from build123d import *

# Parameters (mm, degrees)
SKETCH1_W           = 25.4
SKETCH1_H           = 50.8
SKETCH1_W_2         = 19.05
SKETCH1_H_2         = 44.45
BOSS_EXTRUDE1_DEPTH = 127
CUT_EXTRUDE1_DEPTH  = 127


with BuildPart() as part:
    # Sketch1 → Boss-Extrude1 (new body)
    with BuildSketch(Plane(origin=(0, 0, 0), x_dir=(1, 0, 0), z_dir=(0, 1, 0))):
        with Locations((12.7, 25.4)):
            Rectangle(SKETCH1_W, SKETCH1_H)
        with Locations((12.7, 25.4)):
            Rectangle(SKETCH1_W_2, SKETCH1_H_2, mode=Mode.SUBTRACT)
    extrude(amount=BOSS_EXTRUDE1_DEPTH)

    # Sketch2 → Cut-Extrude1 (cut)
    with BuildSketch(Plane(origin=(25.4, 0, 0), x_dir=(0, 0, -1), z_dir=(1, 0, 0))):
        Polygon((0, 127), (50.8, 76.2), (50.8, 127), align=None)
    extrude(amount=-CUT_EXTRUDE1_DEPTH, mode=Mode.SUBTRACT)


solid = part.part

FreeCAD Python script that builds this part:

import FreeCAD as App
import Part
import Sketcher

V = App.Vector
Q = App.Units.Quantity


def add_polygon(sketch, points):
    """Adds a closed chain of lines whose ends are joined by coincident constraints."""
    first, n = sketch.GeometryCount, len(points)
    for a, b in zip(points, points[1:] + points[:1]):
        sketch.addGeometry(Part.LineSegment(App.Vector(*a, 0), App.Vector(*b, 0)), False)
    for i in range(n):
        sketch.addConstraint(Sketcher.Constraint("Coincident", first + i, 2, first + (i + 1) % n, 1))

doc = App.newDocument("Part")
body = doc.addObject("PartDesign::Body", "Body")

sketch1 = doc.addObject("Sketcher::SketchObject", "Sketch")
body.addObject(sketch1)
sketch1.AttachmentSupport = (doc.XZ_Plane, [""])
sketch1.MapMode = "FlatFace"
add_polygon(sketch1, [(0, -51), (0, 0), (25, 0), (25, -51)])
add_polygon(sketch1, [(22, -3), (3, -3), (3, -48), (22, -48)])
sketch1.addConstraint([
    Sketcher.Constraint("Vertical", 0),
    Sketcher.Constraint("Horizontal", 1),
    Sketcher.Constraint("Vertical", 2),
    Sketcher.Constraint("Horizontal", 3),
    Sketcher.Constraint("Horizontal", 4),
    Sketcher.Constraint("Vertical", 5),
    Sketcher.Constraint("Horizontal", 6),
    Sketcher.Constraint("Vertical", 7),
    Sketcher.Constraint("Coincident", 0, 2, -1, 1),
    Sketcher.Constraint("DistanceX", 1, 1, 1, 2, Q("1 in")),
    Sketcher.Constraint("DistanceY", 0, 1, 0, 2, Q("2 in")),
    Sketcher.Constraint("DistanceX", 4, 2, 4, 1, Q("0.75 in")),
    Sketcher.Constraint("DistanceY", 5, 2, 5, 1, Q("1.75 in")),
    Sketcher.Constraint("DistanceX", -1, 1, 4, 2, Q("0.125 in")),
    Sketcher.Constraint("DistanceY", 4, 2, -1, 1, Q("0.125 in")),
])
pad1 = doc.addObject("PartDesign::Pad", "Pad")
body.addObject(pad1)
pad1.Profile = sketch1
pad1.Length = Q("5 in")
pad1.Reversed = True

sketch2 = doc.addObject("Sketcher::SketchObject", "Sketch001")
body.addObject(sketch2)
sketch2.AttachmentSupport = (doc.YZ_Plane, [""])
sketch2.MapMode = "FlatFace"
sketch2.AttachmentOffset = App.Placement(V(0, 0, 1 * 25.4), App.Rotation())
add_polygon(sketch2, [(127, 0), (76, -51), (127, -51)])
sketch2.addConstraint([
    Sketcher.Constraint("Horizontal", 1),
    Sketcher.Constraint("Vertical", 2),
    Sketcher.Constraint("PointOnObject", 2, 2, -1),
    Sketcher.Constraint("Equal", 1, 2),
    Sketcher.Constraint("DistanceX", 1, 1, 1, 2, Q("2 in")),
    Sketcher.Constraint("DistanceX", -1, 1, 0, 2, Q("3 in")),
])
pocket1 = doc.addObject("PartDesign::Pocket", "Pocket")
body.addObject(pocket1)
pocket1.Profile = sketch2
pocket1.Length = Q("5 in")

doc.recompute()
